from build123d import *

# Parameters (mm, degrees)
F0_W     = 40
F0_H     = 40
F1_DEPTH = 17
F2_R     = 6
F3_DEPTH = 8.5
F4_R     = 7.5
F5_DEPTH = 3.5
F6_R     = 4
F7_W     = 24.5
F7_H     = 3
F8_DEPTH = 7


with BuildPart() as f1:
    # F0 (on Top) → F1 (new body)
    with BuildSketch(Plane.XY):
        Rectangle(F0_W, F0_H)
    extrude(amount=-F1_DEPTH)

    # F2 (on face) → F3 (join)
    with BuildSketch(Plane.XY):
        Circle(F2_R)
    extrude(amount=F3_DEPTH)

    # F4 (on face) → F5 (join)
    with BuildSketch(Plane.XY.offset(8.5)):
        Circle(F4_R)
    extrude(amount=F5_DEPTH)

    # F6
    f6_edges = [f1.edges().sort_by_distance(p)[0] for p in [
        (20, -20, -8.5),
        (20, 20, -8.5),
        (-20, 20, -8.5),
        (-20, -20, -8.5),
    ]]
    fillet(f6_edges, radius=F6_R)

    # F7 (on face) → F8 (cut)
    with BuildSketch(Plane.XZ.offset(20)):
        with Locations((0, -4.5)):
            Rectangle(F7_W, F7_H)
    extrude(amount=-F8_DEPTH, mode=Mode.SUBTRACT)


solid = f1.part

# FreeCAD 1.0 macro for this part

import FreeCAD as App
import Part
import Sketcher


def edges_at(feature, points):
    """Names of the edges that pass closest to the given points."""
    edges = feature.Shape.Edges
    near = lambda p: min(range(len(edges)), key=lambda i: edges[i].distToShape(Part.Vertex(*p))[0])
    return sorted({f"Edge{near(p) + 1}" for p in points})

doc = App.newDocument("Part")
params = doc.addObject("Spreadsheet::Sheet", "Params")
for row, (alias, value) in enumerate([
    ("sketch1_width", "40 mm"),
    ("pad1_length", "17 mm"),
    ("sketch2_diameter", "12 mm"),
    ("pad2_length", "8.5 mm"),
    ("sketch3_diameter", "15 mm"),
    ("pad3_length", "3.5 mm"),
    ("fillet_radius", "4 mm"),
    ("sketch4_height", "3 mm"),
    ("sketch4_width", "24.5 mm"),
    ("pocket1_length", "7 mm"),
], start=1):
    params.set(f"A{row}", alias)
    params.set(f"B{row}", "=" + value)
    params.setAlias(f"B{row}", alias)

body = doc.addObject("PartDesign::Body", "Body")

sketch1 = body.newObject("Sketcher::SketchObject", "Sketch")
sketch1.AttachmentSupport = (doc.getObject("XY_Plane"), [""])
sketch1.MapMode = "FlatFace"
sketch1.addGeometry([
    Part.LineSegment(App.Vector(-20, 20, 0), App.Vector(-20, -20, 0)),
    Part.LineSegment(App.Vector(-20, -20, 0), App.Vector(20, -20, 0)),
    Part.LineSegment(App.Vector(20, -20, 0), App.Vector(20, 20, 0)),
    Part.LineSegment(App.Vector(20, 20, 0), App.Vector(-20, 20, 0)),
], False)
sketch1.addConstraint([
    Sketcher.Constraint("Coincident", 0, 2, 1, 1),
    Sketcher.Constraint("Coincident", 1, 2, 2, 1),
    Sketcher.Constraint("Coincident", 2, 2, 3, 1),
    Sketcher.Constraint("Coincident", 3, 2, 0, 1),
    Sketcher.Constraint("Vertical", 0),
    Sketcher.Constraint("Horizontal", 1),
    Sketcher.Constraint("Vertical", 2),
    Sketcher.Constraint("Horizontal", 3),
    Sketcher.Constraint("Symmetric", 0, 2, 2, 2, -1, 1),
    Sketcher.Constraint("Equal", 3, 0),
    Sketcher.Constraint("DistanceX", 1, 1, 1, 2, 40.0),
])
sketch1.setExpression("Constraints[10]", "Params.sketch1_width")
pad1 = body.newObject("PartDesign::Pad", "Pad")
pad1.Profile = sketch1
pad1.setExpression("Length", "Params.pad1_length")
pad1.Reversed = True

sketch2 = body.newObject("Sketcher::SketchObject", "Sketch001")
sketch2.AttachmentSupport = (doc.getObject("XY_Plane"), [""])
sketch2.MapMode = "FlatFace"
sketch2.addGeometry(Part.Circle(App.Vector(0, 0, 0), App.Vector(0, 0, 1), 6), False)
sketch2.addConstraint([
    Sketcher.Constraint("Coincident", 0, 3, -1, 1),
    Sketcher.Constraint("Diameter", 0, 12.0),
])
sketch2.setExpression("Constraints[1]", "Params.sketch2_diameter")
pad2 = body.newObject("PartDesign::Pad", "Pad001")
pad2.Profile = sketch2
pad2.setExpression("Length", "Params.pad2_length")

sketch3 = body.newObject("Sketcher::SketchObject", "Sketch002")
sketch3.AttachmentSupport = (doc.getObject("XY_Plane"), [""])
sketch3.MapMode = "FlatFace"
sketch3.AttachmentOffset = App.Placement(App.Vector(0, 0, 8.5), App.Rotation())
sketch3.addGeometry(Part.Circle(App.Vector(0, 0, 0), App.Vector(0, 0, 1), 8), False)
sketch3.addConstraint([
    Sketcher.Constraint("Coincident", 0, 3, -1, 1),
    Sketcher.Constraint("Diameter", 0, 15.0),
])
sketch3.setExpression("Constraints[1]", "Params.sketch3_diameter")
pad3 = body.newObject("PartDesign::Pad", "Pad002")
pad3.Profile = sketch3
pad3.setExpression("Length", "Params.pad3_length")
doc.recompute()

fillet = body.newObject("PartDesign::Fillet", "Fillet")
fillet.Base = (pad3, edges_at(pad3, [
    (20, -20, -8.5),
    (20, 20, -8.5),
    (-20, 20, -8.5),
    (-20, -20, -8.5),
]))
fillet.setExpression("Radius", "Params.fillet_radius")

sketch4 = body.newObject("Sketcher::SketchObject", "Sketch003")
sketch4.AttachmentSupport = (doc.getObject("XZ_Plane"), [""])
sketch4.MapMode = "FlatFace"
sketch4.AttachmentOffset = App.Placement(App.Vector(0, 0, 20), App.Rotation())
sketch4.addGeometry([
    Part.LineSegment(App.Vector(-12.2, -3, 0), App.Vector(-12.2, -6, 0)),
    Part.LineSegment(App.Vector(-12.2, -6, 0), App.Vector(12.2, -6, 0)),
    Part.LineSegment(App.Vector(12.2, -6, 0), App.Vector(12.2, -3, 0)),
    Part.LineSegment(App.Vector(12.2, -3, 0), App.Vector(-12.2, -3, 0)),
], False)
sketch4.addConstraint([
    Sketcher.Constraint("Coincident", 0, 2, 1, 1),
    Sketcher.Constraint("Coincident", 1, 2, 2, 1),
    Sketcher.Constraint("Coincident", 2, 2, 3, 1),
    Sketcher.Constraint("Coincident", 3, 2, 0, 1),
    Sketcher.Constraint("Vertical", 0),
    Sketcher.Constraint("Horizontal", 1),
    Sketcher.Constraint("Vertical", 2),
    Sketcher.Constraint("Horizontal", 3),
    Sketcher.Constraint("DistanceY", 0, 2, 0, 1, 3.0),
    Sketcher.Constraint("DistanceX", 1, 1, 1, 2, 24.5),
    Sketcher.Constraint("DistanceY", 0, 2, -1, 1, 6.0),
    Sketcher.Constraint("DistanceX", 0, 2, -1, 1, 12.25),
])
sketch4.setExpression("Constraints[8]", "Params.sketch4_height")
sketch4.setExpression("Constraints[9]", "Params.sketch4_width")
pocket1 = body.newObject("PartDesign::Pocket", "Pocket")
pocket1.Profile = sketch4
pocket1.setExpression("Length", "Params.pocket1_length")

doc.recompute()
